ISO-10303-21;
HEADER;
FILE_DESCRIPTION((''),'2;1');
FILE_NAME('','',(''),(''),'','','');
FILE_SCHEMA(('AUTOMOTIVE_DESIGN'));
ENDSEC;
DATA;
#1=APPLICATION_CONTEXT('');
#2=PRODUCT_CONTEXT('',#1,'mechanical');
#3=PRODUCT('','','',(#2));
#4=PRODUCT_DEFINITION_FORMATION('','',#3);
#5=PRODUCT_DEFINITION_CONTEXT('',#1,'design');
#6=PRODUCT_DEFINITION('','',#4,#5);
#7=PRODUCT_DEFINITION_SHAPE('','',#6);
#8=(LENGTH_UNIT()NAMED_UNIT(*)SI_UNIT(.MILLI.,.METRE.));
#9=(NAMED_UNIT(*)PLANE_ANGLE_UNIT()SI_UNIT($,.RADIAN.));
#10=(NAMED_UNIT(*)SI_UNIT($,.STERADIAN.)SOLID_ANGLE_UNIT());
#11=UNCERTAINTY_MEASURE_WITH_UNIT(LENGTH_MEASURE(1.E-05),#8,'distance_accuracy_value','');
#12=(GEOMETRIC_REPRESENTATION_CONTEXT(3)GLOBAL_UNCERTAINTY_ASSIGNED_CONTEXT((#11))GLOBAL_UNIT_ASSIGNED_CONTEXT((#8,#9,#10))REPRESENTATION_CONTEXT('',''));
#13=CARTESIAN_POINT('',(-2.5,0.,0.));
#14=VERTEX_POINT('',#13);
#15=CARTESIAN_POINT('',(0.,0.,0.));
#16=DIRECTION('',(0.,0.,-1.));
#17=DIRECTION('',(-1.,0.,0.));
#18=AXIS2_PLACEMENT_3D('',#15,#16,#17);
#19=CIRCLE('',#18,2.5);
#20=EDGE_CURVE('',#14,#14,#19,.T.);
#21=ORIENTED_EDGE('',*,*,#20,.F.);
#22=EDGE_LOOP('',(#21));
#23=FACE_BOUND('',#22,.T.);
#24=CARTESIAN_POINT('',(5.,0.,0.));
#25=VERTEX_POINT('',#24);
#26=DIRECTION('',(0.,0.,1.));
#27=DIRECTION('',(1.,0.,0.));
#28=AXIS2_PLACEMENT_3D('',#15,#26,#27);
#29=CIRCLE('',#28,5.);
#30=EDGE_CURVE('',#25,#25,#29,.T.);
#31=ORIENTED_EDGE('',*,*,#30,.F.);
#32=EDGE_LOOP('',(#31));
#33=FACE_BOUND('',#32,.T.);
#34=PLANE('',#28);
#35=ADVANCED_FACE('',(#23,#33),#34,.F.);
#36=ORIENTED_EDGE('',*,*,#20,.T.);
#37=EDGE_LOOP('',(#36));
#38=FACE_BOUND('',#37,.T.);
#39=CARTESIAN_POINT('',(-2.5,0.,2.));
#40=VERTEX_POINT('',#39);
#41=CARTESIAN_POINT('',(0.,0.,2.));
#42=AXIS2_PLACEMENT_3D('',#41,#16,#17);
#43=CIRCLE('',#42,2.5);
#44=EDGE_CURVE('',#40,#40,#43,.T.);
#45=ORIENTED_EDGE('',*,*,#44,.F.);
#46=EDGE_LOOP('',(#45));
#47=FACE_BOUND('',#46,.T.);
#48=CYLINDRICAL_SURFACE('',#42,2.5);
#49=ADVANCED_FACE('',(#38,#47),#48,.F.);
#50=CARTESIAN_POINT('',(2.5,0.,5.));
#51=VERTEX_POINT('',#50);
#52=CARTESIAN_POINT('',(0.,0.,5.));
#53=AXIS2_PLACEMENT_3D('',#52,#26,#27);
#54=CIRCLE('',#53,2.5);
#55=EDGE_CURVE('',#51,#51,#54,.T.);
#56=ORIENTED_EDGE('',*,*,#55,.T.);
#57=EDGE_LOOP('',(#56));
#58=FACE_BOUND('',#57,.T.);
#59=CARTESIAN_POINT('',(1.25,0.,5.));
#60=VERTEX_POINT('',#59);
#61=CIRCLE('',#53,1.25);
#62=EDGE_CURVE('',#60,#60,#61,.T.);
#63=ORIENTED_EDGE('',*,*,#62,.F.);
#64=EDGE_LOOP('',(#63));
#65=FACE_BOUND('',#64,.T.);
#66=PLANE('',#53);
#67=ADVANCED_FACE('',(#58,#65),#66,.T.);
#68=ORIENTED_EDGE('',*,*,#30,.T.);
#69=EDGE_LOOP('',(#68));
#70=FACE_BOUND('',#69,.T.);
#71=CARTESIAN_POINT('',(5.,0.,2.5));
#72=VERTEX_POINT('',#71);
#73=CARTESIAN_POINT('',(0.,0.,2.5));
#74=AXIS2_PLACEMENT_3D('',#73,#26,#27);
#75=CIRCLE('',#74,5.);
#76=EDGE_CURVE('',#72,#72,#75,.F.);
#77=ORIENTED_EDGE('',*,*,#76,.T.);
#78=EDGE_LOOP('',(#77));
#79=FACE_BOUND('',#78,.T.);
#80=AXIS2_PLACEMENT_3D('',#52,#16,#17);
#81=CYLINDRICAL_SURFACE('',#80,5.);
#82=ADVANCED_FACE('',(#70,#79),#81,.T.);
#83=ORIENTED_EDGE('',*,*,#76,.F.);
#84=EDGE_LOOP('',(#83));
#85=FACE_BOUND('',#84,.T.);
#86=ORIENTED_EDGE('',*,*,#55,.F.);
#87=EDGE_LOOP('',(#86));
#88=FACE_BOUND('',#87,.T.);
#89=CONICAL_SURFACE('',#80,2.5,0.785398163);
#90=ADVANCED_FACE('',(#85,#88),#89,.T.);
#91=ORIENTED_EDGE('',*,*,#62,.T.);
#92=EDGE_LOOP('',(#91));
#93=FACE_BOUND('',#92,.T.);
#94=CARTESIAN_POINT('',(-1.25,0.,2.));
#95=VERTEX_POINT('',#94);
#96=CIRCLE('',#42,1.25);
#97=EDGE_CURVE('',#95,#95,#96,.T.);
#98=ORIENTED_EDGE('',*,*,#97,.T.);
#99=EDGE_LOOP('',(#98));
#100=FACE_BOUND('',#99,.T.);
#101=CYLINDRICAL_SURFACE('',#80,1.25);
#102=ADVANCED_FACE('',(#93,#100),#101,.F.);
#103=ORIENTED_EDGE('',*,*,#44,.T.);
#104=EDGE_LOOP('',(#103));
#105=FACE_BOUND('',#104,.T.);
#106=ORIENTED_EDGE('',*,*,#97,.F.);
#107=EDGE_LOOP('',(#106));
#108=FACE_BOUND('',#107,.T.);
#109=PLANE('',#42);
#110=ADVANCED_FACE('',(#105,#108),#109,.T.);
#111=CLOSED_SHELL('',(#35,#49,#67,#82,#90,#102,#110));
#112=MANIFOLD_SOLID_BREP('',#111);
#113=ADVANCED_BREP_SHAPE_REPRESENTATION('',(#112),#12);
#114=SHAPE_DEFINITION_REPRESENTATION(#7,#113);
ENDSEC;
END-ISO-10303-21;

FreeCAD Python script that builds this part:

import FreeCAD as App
import Part
import Sketcher

V = App.Vector
Q = App.Units.Quantity


def edges_at(feature, points):
    """Names of the edges that pass closest to the given points."""
    edges = feature.Shape.Edges
    near = lambda p: min(range(len(edges)), key=lambda i: edges[i].distToShape(Part.Vertex(*p))[0])
    return sorted({f"Edge{near(p) + 1}" for p in points})

doc = App.newDocument("Part")
body = doc.addObject("PartDesign::Body", "Body")

# Sketch on XY plane
sketch1 = body.newObject("Sketcher::SketchObject", "Sketch")
sketch1.AttachmentSupport = (doc.getObject("XY_Plane"), [""])
sketch1.MapMode = "FlatFace"
sketch1.addGeometry(Part.Circle(V(0, 0, 0), V(0, 0, 1), 5), False)
sketch1.addGeometry(Part.Circle(V(0, 0, 0), V(0, 0, 1), 1.2), False)
sketch1.addConstraint(Sketcher.Constraint("Coincident", 0, 3, -1, 1))
sketch1.addConstraint(Sketcher.Constraint("Coincident", 1, 3, -1, 1))
sketch1.addConstraint(Sketcher.Constraint("Diameter", 0, Q("10 mm")))
sketch1.addConstraint(Sketcher.Constraint("Diameter", 1, Q("2.5 mm")))
pad1 = body.newObject("PartDesign::Pad", "Pad")
pad1.Profile = sketch1
pad1.Length = 5
doc.recompute()

chamfer = body.newObject("PartDesign::Chamfer", "Chamfer")
chamfer.Base = (pad1, edges_at(pad1, [(-5, 0, 5)]))
chamfer.Size = 2.5

# Sketch on XY plane
sketch2 = body.newObject("Sketcher::SketchObject", "Sketch001")
sketch2.AttachmentSupport = (doc.getObject("XY_Plane"), [""])
sketch2.MapMode = "FlatFace"
sketch2.addGeometry(Part.Circle(V(0, 0, 0), V(0, 0, 1), 2.5), False)
sketch2.addConstraint(Sketcher.Constraint("Coincident", 0, 3, -1, 1))
sketch2.addConstraint(Sketcher.Constraint("Diameter", 0, Q("5 mm")))
pocket1 = body.newObject("PartDesign::Pocket", "Pocket")
pocket1.Profile = sketch2
pocket1.Length = 2
pocket1.Reversed = True

doc.recompute()
